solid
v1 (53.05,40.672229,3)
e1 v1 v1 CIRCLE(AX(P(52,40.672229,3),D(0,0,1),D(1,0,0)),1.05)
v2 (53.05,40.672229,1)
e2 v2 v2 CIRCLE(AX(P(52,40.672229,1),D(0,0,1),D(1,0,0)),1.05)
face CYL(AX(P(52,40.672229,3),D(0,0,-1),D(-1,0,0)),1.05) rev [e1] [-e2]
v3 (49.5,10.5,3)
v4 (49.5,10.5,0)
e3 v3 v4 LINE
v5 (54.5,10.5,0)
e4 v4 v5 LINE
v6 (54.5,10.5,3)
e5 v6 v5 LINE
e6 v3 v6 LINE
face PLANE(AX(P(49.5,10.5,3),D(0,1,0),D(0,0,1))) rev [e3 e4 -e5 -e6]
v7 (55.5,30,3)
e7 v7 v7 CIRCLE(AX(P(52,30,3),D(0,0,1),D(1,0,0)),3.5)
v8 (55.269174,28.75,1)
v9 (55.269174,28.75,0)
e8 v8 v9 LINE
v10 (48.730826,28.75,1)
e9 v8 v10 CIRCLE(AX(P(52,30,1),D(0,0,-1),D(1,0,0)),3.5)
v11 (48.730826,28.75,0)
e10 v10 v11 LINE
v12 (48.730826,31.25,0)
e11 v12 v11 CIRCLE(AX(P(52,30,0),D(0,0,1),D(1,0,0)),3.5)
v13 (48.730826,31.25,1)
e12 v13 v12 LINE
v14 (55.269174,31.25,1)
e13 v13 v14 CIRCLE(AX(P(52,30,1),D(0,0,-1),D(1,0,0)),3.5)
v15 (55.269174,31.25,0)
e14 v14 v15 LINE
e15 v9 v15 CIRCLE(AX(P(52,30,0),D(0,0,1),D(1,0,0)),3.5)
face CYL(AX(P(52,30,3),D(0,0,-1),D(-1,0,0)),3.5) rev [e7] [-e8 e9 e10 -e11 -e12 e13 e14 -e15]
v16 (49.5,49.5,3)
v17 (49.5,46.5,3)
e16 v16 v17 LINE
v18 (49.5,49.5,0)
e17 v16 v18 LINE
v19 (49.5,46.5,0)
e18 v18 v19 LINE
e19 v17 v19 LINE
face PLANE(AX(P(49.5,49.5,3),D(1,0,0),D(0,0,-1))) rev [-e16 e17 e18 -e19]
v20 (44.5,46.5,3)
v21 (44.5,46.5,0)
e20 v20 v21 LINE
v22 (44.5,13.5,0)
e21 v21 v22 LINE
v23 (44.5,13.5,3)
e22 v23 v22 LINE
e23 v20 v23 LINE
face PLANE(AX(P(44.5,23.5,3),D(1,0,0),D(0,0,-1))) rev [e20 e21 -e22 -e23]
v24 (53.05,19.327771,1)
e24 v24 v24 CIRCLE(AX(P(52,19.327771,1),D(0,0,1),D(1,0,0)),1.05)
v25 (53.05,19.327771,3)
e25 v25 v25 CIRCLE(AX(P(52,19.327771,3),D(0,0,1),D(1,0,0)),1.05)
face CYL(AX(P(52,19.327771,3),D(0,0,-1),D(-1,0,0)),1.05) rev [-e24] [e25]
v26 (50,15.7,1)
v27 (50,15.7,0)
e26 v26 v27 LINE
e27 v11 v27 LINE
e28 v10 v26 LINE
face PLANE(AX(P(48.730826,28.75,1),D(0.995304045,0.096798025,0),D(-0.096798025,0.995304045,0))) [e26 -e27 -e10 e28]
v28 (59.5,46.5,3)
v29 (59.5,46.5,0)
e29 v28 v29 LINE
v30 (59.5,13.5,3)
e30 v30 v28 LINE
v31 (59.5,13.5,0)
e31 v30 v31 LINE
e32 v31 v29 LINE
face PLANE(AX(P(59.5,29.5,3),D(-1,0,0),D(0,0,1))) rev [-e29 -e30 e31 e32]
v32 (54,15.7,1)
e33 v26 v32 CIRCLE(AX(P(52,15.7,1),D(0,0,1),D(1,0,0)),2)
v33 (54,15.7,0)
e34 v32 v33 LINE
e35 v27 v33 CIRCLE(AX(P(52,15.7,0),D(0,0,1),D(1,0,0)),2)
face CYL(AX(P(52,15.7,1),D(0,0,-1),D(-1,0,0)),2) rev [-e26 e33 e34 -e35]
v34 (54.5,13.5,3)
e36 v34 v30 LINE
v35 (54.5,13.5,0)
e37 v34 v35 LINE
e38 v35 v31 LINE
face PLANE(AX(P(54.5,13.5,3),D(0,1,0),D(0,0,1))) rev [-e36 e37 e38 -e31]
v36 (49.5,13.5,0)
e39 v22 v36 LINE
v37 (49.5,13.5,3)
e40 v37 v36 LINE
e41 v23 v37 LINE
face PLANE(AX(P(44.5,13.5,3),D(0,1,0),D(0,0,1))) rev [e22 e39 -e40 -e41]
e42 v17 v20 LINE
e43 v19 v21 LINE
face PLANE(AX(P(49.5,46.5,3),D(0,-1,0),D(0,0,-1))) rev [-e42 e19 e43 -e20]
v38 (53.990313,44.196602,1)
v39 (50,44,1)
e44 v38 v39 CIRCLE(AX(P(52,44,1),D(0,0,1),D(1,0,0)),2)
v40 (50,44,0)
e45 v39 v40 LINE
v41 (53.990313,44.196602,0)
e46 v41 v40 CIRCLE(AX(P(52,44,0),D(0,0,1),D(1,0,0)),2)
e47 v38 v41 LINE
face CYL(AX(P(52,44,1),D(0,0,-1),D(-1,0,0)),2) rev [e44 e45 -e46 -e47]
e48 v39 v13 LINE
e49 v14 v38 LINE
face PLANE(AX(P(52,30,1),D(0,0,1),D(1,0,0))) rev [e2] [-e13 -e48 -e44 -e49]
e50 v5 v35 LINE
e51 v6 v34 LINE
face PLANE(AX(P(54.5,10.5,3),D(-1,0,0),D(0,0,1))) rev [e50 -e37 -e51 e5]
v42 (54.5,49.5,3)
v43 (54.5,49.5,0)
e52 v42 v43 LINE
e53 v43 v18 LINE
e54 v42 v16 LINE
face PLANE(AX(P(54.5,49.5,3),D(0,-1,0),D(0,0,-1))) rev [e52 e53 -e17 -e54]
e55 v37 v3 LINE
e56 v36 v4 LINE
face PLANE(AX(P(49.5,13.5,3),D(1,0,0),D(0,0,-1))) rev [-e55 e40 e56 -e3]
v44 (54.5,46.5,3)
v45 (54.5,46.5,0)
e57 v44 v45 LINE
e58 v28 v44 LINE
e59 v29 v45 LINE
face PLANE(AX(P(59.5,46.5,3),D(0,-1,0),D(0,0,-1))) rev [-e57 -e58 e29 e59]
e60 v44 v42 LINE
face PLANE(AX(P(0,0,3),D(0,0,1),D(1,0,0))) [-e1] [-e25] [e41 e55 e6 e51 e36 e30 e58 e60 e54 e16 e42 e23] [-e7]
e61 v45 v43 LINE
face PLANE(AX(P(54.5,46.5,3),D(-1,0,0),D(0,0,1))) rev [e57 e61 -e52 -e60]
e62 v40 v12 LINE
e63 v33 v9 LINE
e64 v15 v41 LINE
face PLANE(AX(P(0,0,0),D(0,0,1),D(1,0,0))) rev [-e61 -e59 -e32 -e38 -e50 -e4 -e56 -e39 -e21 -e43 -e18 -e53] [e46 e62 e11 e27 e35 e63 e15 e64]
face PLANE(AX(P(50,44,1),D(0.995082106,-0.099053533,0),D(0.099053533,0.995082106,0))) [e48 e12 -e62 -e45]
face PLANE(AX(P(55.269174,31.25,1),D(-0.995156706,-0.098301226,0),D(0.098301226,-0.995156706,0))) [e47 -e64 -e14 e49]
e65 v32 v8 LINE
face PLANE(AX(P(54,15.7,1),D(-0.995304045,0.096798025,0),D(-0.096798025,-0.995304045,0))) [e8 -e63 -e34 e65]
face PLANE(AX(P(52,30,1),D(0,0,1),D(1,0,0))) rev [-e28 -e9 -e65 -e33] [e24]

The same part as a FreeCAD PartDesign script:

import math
import FreeCAD as App
import Part
import Sketcher

V = App.Vector
Q = App.Units.Quantity


def add_polygon(sketch, points):
    """Adds a closed chain of lines whose ends are joined by coincident constraints."""
    first, n = sketch.GeometryCount, len(points)
    for a, b in zip(points, points[1:] + points[:1]):
        sketch.addGeometry(Part.LineSegment(App.Vector(*a, 0), App.Vector(*b, 0)), False)
    for i in range(n):
        sketch.addConstraint(Sketcher.Constraint("Coincident", first + i, 2, first + (i + 1) % n, 1))

doc = App.newDocument("Part")
body = doc.addObject("PartDesign::Body", "Body")

# Sketch on XY plane
sketch1 = doc.addObject("Sketcher::SketchObject", "Sketch")
body.addObject(sketch1)
sketch1.AttachmentSupport = (doc.XY_Plane, [""])
sketch1.MapMode = "FlatFace"
add_polygon(sketch1, [(49.5, 10.5), (54.5, 10.5), (54.5, 13.5), (59.5, 13.5), (59.5, 46.5), (54.5, 46.5), (54.5, 49.5), (49.5, 49.5), (49.5, 46.5), (44.5, 46.5), (44.5, 13.5), (49.5, 13.5)])  # lines 0-11
sketch1.addGeometry(Part.Circle(V(52, 19.327771, 0), V(0, 0, 1), 1.05), False)  # 12
sketch1.addGeometry(Part.Circle(V(52, 30, 0), V(0, 0, 1), 3.5), False)  # 13
sketch1.addGeometry(Part.Circle(V(52, 40.672229, 0), V(0, 0, 1), 1.05), False)  # 14
sketch1.addConstraint(Sketcher.Constraint("Horizontal", 0))
sketch1.addConstraint(Sketcher.Constraint("Vertical", 1))
sketch1.addConstraint(Sketcher.Constraint("Horizontal", 2))
sketch1.addConstraint(Sketcher.Constraint("Vertical", 3))
sketch1.addConstraint(Sketcher.Constraint("Horizontal", 4))
sketch1.addConstraint(Sketcher.Constraint("Vertical", 5))
sketch1.addConstraint(Sketcher.Constraint("Horizontal", 6))
sketch1.addConstraint(Sketcher.Constraint("Vertical", 7))
sketch1.addConstraint(Sketcher.Constraint("Horizontal", 8))
sketch1.addConstraint(Sketcher.Constraint("Vertical", 9))
sketch1.addConstraint(Sketcher.Constraint("Horizontal", 10))
sketch1.addConstraint(Sketcher.Constraint("Vertical", 11))
sketch1.addConstraint(Sketcher.Constraint("Equal", 12, 14))
sketch1.addConstraint(Sketcher.Constraint("Horizontal", 4, 2, 7, 2))
sketch1.addConstraint(Sketcher.Constraint("Horizontal", 2, 2, 9, 2))
sketch1.addConstraint(Sketcher.Constraint("Vertical", 12, 3, 13, 3))
sketch1.addConstraint(Sketcher.Constraint("Vertical", 13, 3, 14, 3))
sketch1.addConstraint(Sketcher.Constraint("Vertical", 1, 2, 4, 2))
sketch1.addConstraint(Sketcher.Constraint("Vertical", 7, 2, 10, 2))
sketch1.addConstraint(Sketcher.Constraint("Equal", 0, 2))
sketch1.addConstraint(Sketcher.Constraint("Equal", 6, 8))
sketch1.addConstraint(Sketcher.Constraint("Equal", 1, 5))
sketch1.addConstraint(Sketcher.Constraint("Diameter", 13, Q("7 mm")))
sketch1.addConstraint(Sketcher.Constraint("Diameter", 12, Q("2.1 mm")))
sketch1.addConstraint(Sketcher.Constraint("DistanceX", 0, 1, 0, 2, Q("5 mm")))
sketch1.addConstraint(Sketcher.Constraint("DistanceY", 1, 1, 1, 2, Q("3 mm")))
sketch1.addConstraint(Sketcher.Constraint("DistanceY", 3, 1, 3, 2, Q("33 mm")))
sketch1.addConstraint(Sketcher.Constraint("DistanceX", -1, 1, 12, 3, Q("52 mm")))
sketch1.addConstraint(Sketcher.Constraint("DistanceY", -1, 1, 13, 3, Q("30 mm")))
sketch1.addConstraint(Sketcher.Constraint("DistanceX", -1, 1, 0, 2, Q("54.5 mm")))
sketch1.addConstraint(Sketcher.Constraint("DistanceY", -1, 1, 0, 2, Q("10.5 mm")))
sketch1.addConstraint(Sketcher.Constraint("DistanceY", -1, 1, 12, 3, Q("19.327771 mm")))
sketch1.addConstraint(Sketcher.Constraint("DistanceY", -1, 1, 14, 3, Q("40.672229 mm")))
pad1 = doc.addObject("PartDesign::Pad", "Pad")
body.addObject(pad1)
pad1.Profile = sketch1
pad1.Length = 3

# Sketch on XY plane
sketch2 = doc.addObject("Sketcher::SketchObject", "Sketch001")
body.addObject(sketch2)
sketch2.AttachmentSupport = (doc.XY_Plane, [""])
sketch2.MapMode = "FlatFace"
sketch2.addGeometry(Part.LineSegment(V(48.730826, 28.75, 0), V(50, 15.7, 0)), False)
sketch2.addGeometry(Part.ArcOfCircle(Part.Circle(V(52, 15.7, 0), V(0, 0, 1), 2), math.radians(180), math.radians(360)), False)
sketch2.addGeometry(Part.LineSegment(V(54, 15.7, 0), V(55.269174, 28.75, 0)), False)
sketch2.addGeometry(Part.ArcOfCircle(Part.Circle(V(52, 30, 0), V(0, 0, 1), 3.5), math.radians(-159.075168), math.radians(-20.924832)), False)
sketch2.addGeometry(Part.LineSegment(V(55.269174, 31.25, 0), V(53.990313, 44.196602, 0)), False)
sketch2.addGeometry(Part.ArcOfCircle(Part.Circle(V(52, 44, 0), V(0, 0, 1), 2), math.radians(5.641356), math.radians(180)), False)
sketch2.addGeometry(Part.LineSegment(V(50, 44, 0), V(48.730826, 31.25, 0)), False)
sketch2.addGeometry(Part.ArcOfCircle(Part.Circle(V(52, 30, 0), V(0, 0, 1), 3.5), math.radians(20.924832), math.radians(159.075168)), False)
sketch2.addConstraint(Sketcher.Constraint("Coincident", 0, 2, 1, 1))
sketch2.addConstraint(Sketcher.Constraint("Coincident", 1, 2, 2, 1))
sketch2.addConstraint(Sketcher.Constraint("Coincident", 2, 2, 3, 2))
sketch2.addConstraint(Sketcher.Constraint("Coincident", 3, 1, 0, 1))
sketch2.addConstraint(Sketcher.Constraint("Tangent", 4, 2, 5, 1))
sketch2.addConstraint(Sketcher.Constraint("Coincident", 5, 2, 6, 1))
sketch2.addConstraint(Sketcher.Constraint("Coincident", 6, 2, 7, 2))
sketch2.addConstraint(Sketcher.Constraint("Coincident", 7, 1, 4, 1))
sketch2.addConstraint(Sketcher.Constraint("Coincident", 7, 3, 3, 3))
sketch2.addConstraint(Sketcher.Constraint("Equal", 1, 5))
sketch2.addConstraint(Sketcher.Constraint("Equal", 3, 7))
sketch2.addConstraint(Sketcher.Constraint("Horizontal", 1, 3, 0, 2))
sketch2.addConstraint(Sketcher.Constraint("Horizontal", 0, 2, 1, 2))
sketch2.addConstraint(Sketcher.Constraint("Horizontal", 2, 2, 3, 1))
sketch2.addConstraint(Sketcher.Constraint("Horizontal", 6, 2, 7, 1))
sketch2.addConstraint(Sketcher.Constraint("Vertical", 1, 3, 3, 3))
sketch2.addConstraint(Sketcher.Constraint("Vertical", 3, 3, 5, 3))
sketch2.addConstraint(Sketcher.Constraint("Vertical", 3, 1, 6, 2))
sketch2.addConstraint(Sketcher.Constraint("Radius", 1, Q("2 mm")))
sketch2.addConstraint(Sketcher.Constraint("Radius", 3, Q("3.5 mm")))
sketch2.addConstraint(Sketcher.Constraint("DistanceX", -1, 1, 1, 3, Q("52 mm")))
sketch2.addConstraint(Sketcher.Constraint("DistanceY", -1, 1, 3, 3, Q("30 mm")))
sketch2.addConstraint(Sketcher.Constraint("DistanceY", -1, 1, 5, 3, Q("44 mm")))
sketch2.addConstraint(Sketcher.Constraint("DistanceY", -1, 1, 5, 2, Q("44 mm")))
sketch2.addConstraint(Sketcher.Constraint("DistanceY", -1, 1, 1, 3, Q("15.7 mm")))
sketch2.addConstraint(Sketcher.Constraint("DistanceY", 3, 1, 6, 2, Q("2.5 mm")))
pocket1 = doc.addObject("PartDesign::Pocket", "Pocket")
body.addObject(pocket1)
pocket1.Profile = sketch2
pocket1.Length = 1
pocket1.Reversed = True

doc.recompute()
